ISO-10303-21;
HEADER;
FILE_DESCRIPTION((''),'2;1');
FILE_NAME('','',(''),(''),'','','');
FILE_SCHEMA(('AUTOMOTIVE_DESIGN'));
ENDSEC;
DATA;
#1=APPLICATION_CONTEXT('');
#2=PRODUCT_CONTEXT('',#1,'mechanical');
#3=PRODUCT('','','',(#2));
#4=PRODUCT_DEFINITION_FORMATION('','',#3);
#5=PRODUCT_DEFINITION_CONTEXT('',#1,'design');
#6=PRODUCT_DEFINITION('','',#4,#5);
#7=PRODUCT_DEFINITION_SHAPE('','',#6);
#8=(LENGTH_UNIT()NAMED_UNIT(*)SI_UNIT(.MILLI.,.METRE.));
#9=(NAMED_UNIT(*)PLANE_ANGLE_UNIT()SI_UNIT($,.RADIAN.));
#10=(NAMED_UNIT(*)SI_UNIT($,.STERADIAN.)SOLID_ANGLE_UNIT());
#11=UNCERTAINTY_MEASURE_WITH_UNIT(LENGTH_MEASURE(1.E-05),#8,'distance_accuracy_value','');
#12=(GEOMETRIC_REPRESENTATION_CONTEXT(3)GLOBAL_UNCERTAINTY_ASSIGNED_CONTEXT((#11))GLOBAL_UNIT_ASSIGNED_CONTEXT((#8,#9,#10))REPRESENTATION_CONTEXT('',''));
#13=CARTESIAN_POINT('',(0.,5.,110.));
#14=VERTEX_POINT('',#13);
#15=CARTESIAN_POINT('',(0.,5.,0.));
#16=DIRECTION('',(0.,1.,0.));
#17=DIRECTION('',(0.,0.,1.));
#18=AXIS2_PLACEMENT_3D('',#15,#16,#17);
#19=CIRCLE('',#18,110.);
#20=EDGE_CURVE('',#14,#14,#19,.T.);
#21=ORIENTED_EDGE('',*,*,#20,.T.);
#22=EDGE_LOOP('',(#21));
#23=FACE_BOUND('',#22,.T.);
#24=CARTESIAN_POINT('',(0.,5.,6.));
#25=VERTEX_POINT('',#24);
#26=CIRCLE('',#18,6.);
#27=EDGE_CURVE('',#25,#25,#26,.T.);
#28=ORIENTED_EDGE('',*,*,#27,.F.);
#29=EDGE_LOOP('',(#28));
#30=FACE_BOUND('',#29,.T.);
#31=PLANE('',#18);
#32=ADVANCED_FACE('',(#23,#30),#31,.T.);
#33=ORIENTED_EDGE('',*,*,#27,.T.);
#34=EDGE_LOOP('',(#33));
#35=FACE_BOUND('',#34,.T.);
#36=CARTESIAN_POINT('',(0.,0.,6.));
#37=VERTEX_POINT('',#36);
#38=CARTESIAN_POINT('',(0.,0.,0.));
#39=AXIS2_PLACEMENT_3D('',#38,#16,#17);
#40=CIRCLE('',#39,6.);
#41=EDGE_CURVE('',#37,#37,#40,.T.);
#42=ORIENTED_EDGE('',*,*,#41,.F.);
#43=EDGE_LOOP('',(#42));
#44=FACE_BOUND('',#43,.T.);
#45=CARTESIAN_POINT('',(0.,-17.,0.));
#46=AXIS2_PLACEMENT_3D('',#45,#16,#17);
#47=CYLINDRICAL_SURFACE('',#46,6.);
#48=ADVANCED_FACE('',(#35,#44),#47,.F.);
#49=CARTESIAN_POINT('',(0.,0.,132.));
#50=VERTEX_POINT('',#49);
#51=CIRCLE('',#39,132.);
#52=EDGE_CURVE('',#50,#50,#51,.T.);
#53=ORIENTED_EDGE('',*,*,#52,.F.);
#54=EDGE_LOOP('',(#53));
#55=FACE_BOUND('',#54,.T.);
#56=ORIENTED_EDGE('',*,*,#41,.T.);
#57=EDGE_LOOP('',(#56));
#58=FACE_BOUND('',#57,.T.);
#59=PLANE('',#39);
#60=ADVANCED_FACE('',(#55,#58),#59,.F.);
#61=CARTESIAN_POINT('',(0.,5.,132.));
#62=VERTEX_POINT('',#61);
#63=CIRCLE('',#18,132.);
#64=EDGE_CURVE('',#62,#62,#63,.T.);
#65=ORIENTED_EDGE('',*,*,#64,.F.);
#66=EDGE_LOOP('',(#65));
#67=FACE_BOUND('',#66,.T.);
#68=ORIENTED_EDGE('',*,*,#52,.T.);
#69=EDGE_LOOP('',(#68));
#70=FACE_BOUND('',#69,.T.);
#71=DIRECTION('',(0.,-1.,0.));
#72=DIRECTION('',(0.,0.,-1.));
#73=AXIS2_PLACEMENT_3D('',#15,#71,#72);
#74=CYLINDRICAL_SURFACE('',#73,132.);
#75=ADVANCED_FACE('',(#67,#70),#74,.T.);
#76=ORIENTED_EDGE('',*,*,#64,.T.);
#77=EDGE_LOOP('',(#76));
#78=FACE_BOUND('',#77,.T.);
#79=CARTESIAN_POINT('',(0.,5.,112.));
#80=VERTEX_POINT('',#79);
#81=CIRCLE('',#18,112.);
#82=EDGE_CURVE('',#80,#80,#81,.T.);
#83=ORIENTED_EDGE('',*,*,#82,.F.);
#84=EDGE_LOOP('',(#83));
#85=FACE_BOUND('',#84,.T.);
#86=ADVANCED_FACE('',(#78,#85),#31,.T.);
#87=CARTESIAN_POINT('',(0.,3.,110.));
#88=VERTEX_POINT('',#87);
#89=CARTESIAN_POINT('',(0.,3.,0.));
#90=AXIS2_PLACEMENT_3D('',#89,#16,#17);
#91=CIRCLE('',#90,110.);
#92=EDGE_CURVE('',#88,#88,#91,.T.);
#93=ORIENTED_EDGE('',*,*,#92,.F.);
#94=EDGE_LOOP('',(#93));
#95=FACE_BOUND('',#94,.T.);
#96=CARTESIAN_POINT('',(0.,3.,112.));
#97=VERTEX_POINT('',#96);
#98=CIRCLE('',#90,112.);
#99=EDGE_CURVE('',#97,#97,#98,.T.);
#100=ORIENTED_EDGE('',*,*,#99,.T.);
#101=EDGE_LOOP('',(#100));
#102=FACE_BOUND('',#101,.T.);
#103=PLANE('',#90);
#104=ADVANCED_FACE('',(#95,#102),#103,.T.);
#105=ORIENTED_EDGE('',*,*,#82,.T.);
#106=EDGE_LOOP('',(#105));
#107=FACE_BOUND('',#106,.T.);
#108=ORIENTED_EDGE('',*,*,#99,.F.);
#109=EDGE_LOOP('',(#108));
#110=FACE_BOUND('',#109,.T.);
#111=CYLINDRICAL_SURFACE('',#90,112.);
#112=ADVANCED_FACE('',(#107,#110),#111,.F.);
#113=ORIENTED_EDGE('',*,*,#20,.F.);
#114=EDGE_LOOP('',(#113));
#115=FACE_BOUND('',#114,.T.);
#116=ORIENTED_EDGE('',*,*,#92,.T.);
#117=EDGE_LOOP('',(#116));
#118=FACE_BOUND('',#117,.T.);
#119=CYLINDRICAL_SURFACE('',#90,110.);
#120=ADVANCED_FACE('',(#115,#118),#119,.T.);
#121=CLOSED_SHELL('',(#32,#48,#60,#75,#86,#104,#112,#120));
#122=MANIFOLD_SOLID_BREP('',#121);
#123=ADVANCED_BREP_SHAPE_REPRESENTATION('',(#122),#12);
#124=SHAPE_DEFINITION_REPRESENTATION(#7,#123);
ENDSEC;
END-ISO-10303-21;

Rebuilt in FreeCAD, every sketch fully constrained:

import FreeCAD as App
import Part
import Sketcher
Q = App.Units.Quantity

doc = App.newDocument("Part")
body = doc.addObject("PartDesign::Body", "Body")

# Sketch on XZ plane
sketch1 = doc.addObject("Sketcher::SketchObject", "Sketch")
body.addObject(sketch1)
sketch1.AttachmentSupport = (doc.XZ_Plane, [""])
sketch1.MapMode = "FlatFace"
sketch1.addGeometry(Part.Circle(App.Vector(0, 0, 0), App.Vector(0, 0, 1), 132), False)
sketch1.addConstraint(Sketcher.Constraint("Coincident", 0, 3, -1, 1))
sketch1.addConstraint(Sketcher.Constraint("Diameter", 0, Q("264 mm")))
pad1 = doc.addObject("PartDesign::Pad", "Pad")
body.addObject(pad1)
pad1.Profile = sketch1
pad1.Length = 5
pad1.Reversed = True

# Sketch on XZ plane
sketch2 = doc.addObject("Sketcher::SketchObject", "Sketch001")
body.addObject(sketch2)
sketch2.AttachmentSupport = (doc.XZ_Plane, [""])
sketch2.MapMode = "FlatFace"
sketch2.AttachmentOffset = App.Placement(App.Vector(0, 0, -5), App.Rotation())
sketch2.addGeometry(Part.Circle(App.Vector(0, 0, 0), App.Vector(0, 0, 1), 112), False)
sketch2.addGeometry(Part.Circle(App.Vector(0, 0, 0), App.Vector(0, 0, 1), 110), False)
sketch2.addConstraint(Sketcher.Constraint("Coincident", 0, 3, -1, 1))
sketch2.addConstraint(Sketcher.Constraint("Coincident", 1, 3, -1, 1))
sketch2.addConstraint(Sketcher.Constraint("Diameter", 0, Q("224 mm")))
sketch2.addConstraint(Sketcher.Constraint("Diameter", 1, Q("220 mm")))
pocket1 = doc.addObject("PartDesign::Pocket", "Pocket")
body.addObject(pocket1)
pocket1.Profile = sketch2
pocket1.Length = 2
pocket1.Reversed = True

# Sketch on XZ plane
sketch3 = doc.addObject("Sketcher::SketchObject", "Sketch002")
body.addObject(sketch3)
sketch3.AttachmentSupport = (doc.XZ_Plane, [""])
sketch3.MapMode = "FlatFace"
sketch3.AttachmentOffset = App.Placement(App.Vector(0, 0, -5), App.Rotation())
sketch3.addGeometry(Part.Circle(App.Vector(0, 0, 0), App.Vector(0, 0, 1), 6), False)
sketch3.addConstraint(Sketcher.Constraint("Coincident", 0, 3, -1, 1))
sketch3.addConstraint(Sketcher.Constraint("Diameter", 0, Q("12 mm")))
pocket2 = doc.addObject("PartDesign::Pocket", "Pocket001")
body.addObject(pocket2)
pocket2.Profile = sketch3
pocket2.Length = 22
pocket2.Reversed = True

doc.recompute()
